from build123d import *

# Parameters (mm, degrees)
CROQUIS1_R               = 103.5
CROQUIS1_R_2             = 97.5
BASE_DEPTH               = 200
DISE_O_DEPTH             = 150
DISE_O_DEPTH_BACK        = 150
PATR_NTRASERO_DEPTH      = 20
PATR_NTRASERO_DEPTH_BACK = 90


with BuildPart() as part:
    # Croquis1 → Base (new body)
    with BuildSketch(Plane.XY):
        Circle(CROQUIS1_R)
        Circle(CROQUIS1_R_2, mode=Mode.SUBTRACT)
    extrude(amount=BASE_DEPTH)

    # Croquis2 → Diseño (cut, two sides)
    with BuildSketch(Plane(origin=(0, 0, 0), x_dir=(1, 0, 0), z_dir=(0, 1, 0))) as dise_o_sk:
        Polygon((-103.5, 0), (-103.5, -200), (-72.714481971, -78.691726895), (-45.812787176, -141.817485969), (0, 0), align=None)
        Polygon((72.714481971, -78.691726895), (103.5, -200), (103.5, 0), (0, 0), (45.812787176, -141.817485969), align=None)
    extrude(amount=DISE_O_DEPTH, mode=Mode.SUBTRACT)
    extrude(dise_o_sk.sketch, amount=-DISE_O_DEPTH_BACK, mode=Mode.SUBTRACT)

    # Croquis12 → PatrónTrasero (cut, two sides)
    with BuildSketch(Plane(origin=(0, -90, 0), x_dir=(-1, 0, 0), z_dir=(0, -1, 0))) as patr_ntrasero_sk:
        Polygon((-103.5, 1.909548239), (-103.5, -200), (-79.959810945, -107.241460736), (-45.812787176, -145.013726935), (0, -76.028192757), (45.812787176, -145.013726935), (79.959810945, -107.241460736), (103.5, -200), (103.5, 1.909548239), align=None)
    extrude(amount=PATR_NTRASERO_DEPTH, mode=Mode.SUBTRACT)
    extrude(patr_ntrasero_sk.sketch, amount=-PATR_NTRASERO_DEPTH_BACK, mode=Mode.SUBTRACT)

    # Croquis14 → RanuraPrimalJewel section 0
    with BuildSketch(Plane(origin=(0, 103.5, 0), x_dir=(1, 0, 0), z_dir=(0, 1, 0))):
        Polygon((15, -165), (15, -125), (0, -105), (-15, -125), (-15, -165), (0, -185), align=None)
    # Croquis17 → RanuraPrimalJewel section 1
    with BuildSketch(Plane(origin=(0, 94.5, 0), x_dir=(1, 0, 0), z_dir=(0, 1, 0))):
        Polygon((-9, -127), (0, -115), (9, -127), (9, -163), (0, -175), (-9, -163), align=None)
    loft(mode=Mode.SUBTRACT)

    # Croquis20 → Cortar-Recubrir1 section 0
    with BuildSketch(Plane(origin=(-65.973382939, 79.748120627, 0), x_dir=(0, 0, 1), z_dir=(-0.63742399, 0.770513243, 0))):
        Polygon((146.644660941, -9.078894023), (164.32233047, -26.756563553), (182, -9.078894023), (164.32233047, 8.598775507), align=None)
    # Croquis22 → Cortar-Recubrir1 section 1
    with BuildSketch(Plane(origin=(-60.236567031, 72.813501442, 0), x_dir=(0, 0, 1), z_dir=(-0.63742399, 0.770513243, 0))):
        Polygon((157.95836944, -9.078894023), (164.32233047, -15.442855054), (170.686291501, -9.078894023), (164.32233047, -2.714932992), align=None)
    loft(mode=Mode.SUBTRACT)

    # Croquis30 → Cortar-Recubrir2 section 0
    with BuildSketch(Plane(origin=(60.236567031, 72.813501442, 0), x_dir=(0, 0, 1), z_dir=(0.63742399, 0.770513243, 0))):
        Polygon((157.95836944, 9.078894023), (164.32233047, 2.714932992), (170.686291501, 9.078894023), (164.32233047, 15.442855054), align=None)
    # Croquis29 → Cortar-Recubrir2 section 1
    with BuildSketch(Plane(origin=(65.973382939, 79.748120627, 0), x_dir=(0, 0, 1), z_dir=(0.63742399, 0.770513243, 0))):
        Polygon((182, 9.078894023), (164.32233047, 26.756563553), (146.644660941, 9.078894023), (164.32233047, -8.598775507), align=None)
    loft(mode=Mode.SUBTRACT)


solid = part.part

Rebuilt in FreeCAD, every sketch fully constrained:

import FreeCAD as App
import Part
import Sketcher
from FreeCAD import Vector
Q = App.Units.Quantity

doc = App.newDocument("Part")
body = doc.addObject("PartDesign::Body", "Body")

# Sketch on XY plane
sketch1 = body.newObject("Sketcher::SketchObject", "Sketch")
sketch1.AttachmentSupport = (doc.getObject("XY_Plane"), [""])
sketch1.MapMode = "FlatFace"
sketch1.addGeometry(Part.Circle(Vector(0, 0, 0), Vector(0, 0, 1), 104), False)
sketch1.addGeometry(Part.Circle(Vector(0, 0, 0), Vector(0, 0, 1), 98), False)
sketch1.addConstraint(Sketcher.Constraint("Coincident", 0, 3, -1, 1))
sketch1.addConstraint(Sketcher.Constraint("Coincident", 1, 3, -1, 1))
sketch1.addConstraint(Sketcher.Constraint("Diameter", 0, Q("207 mm")))
sketch1.addConstraint(Sketcher.Constraint("Diameter", 1, Q("195 mm")))
pad1 = body.newObject("PartDesign::Pad", "Pad")
pad1.Profile = sketch1
pad1.Length = 200

# Sketch on XZ plane
sketch2 = body.newObject("Sketcher::SketchObject", "Sketch001")
sketch2.AttachmentSupport = (doc.getObject("XZ_Plane"), [""])
sketch2.MapMode = "FlatFace"
sketch2.addGeometry(Part.LineSegment(Vector(-104, 0, 0), Vector(-104, 200, 0)), False)
sketch2.addGeometry(Part.LineSegment(Vector(-104, 200, 0), Vector(-73, 79, 0)), False)
sketch2.addGeometry(Part.LineSegment(Vector(-73, 79, 0), Vector(-46, 142, 0)), False)
sketch2.addGeometry(Part.LineSegment(Vector(-46, 142, 0), Vector(0, 0, 0)), False)
sketch2.addGeometry(Part.LineSegment(Vector(0, 0, 0), Vector(-104, 0, 0)), False)
sketch2.addGeometry(Part.LineSegment(Vector(73, 79, 0), Vector(104, 200, 0)), False)
sketch2.addGeometry(Part.LineSegment(Vector(104, 200, 0), Vector(104, 0, 0)), False)
sketch2.addGeometry(Part.LineSegment(Vector(104, 0, 0), Vector(0, 0, 0)), False)
sketch2.addGeometry(Part.LineSegment(Vector(0, 0, 0), Vector(46, 142, 0)), False)
sketch2.addGeometry(Part.LineSegment(Vector(46, 142, 0), Vector(73, 79, 0)), False)
sketch2.addConstraint(Sketcher.Constraint("Coincident", 0, 2, 1, 1))
sketch2.addConstraint(Sketcher.Constraint("Coincident", 1, 2, 2, 1))
sketch2.addConstraint(Sketcher.Constraint("Coincident", 2, 2, 3, 1))
sketch2.addConstraint(Sketcher.Constraint("Coincident", 3, 2, 4, 1))
sketch2.addConstraint(Sketcher.Constraint("Coincident", 4, 2, 0, 1))
sketch2.addConstraint(Sketcher.Constraint("Coincident", 5, 2, 6, 1))
sketch2.addConstraint(Sketcher.Constraint("Coincident", 6, 2, 7, 1))
sketch2.addConstraint(Sketcher.Constraint("Coincident", 7, 2, 8, 1))
sketch2.addConstraint(Sketcher.Constraint("Coincident", 8, 2, 9, 1))
sketch2.addConstraint(Sketcher.Constraint("Coincident", 9, 2, 5, 1))
sketch2.addConstraint(Sketcher.Constraint("Vertical", 0))
sketch2.addConstraint(Sketcher.Constraint("Horizontal", 4))
sketch2.addConstraint(Sketcher.Constraint("Vertical", 6))
sketch2.addConstraint(Sketcher.Constraint("Horizontal", 7))
sketch2.addConstraint(Sketcher.Constraint("Coincident", 3, 2, -1, 1))
sketch2.addConstraint(Sketcher.Constraint("Coincident", 7, 2, -1, 1))
sketch2.addConstraint(Sketcher.Constraint("Symmetric", 0, 2, 5, 2, -2))
sketch2.addConstraint(Sketcher.Constraint("Symmetric", 2, 2, 8, 2, -2))
sketch2.addConstraint(Sketcher.Constraint("Symmetric", 1, 2, 9, 2, -2))
sketch2.addConstraint(Sketcher.Constraint("DistanceY", 0, 1, 0, 2, Q("200 mm")))
sketch2.addConstraint(Sketcher.Constraint("DistanceX", 4, 2, 4, 1, Q("103.5 mm")))
sketch2.addConstraint(Sketcher.Constraint("Distance", 3, Q("149.033589 mm")))
sketch2.addConstraint(Sketcher.Constraint("DistanceX", 1, 2, -1, 1, Q("72.714482 mm")))
sketch2.addConstraint(Sketcher.Constraint("DistanceY", 1, 2, 2, 2, Q("63.125759 mm")))
sketch2.addConstraint(Sketcher.Constraint("DistanceX", 1, 2, 8, 2, Q("118.527269 mm")))
pocket1 = body.newObject("PartDesign::Pocket", "Pocket")
pocket1.Profile = sketch2
pocket1.Type = "ThroughAll"
pocket1.Midplane = True

# Sketch on XZ plane
sketch3 = body.newObject("Sketcher::SketchObject", "Sketch002")
sketch3.AttachmentSupport = (doc.getObject("XZ_Plane"), [""])
sketch3.MapMode = "FlatFace"
sketch3.AttachmentOffset = App.Placement(Vector(0, 0, 90), App.Rotation())
sketch3.addGeometry(Part.LineSegment(Vector(104, -2, 0), Vector(104, 200, 0)), False)
sketch3.addGeometry(Part.LineSegment(Vector(104, 200, 0), Vector(80, 107, 0)), False)
sketch3.addGeometry(Part.LineSegment(Vector(80, 107, 0), Vector(46, 145, 0)), False)
sketch3.addGeometry(Part.LineSegment(Vector(46, 145, 0), Vector(0, 76, 0)), False)
sketch3.addGeometry(Part.LineSegment(Vector(0, 76, 0), Vector(-46, 145, 0)), False)
sketch3.addGeometry(Part.LineSegment(Vector(-46, 145, 0), Vector(-80, 107, 0)), False)
sketch3.addGeometry(Part.LineSegment(Vector(-80, 107, 0), Vector(-104, 200, 0)), False)
sketch3.addGeometry(Part.LineSegment(Vector(-104, 200, 0), Vector(-104, -2, 0)), False)
sketch3.addGeometry(Part.LineSegment(Vector(-104, -2, 0), Vector(104, -2, 0)), False)
sketch3.addConstraint(Sketcher.Constraint("Coincident", 0, 2, 1, 1))
sketch3.addConstraint(Sketcher.Constraint("Coincident", 1, 2, 2, 1))
sketch3.addConstraint(Sketcher.Constraint("Coincident", 2, 2, 3, 1))
sketch3.addConstraint(Sketcher.Constraint("Coincident", 3, 2, 4, 1))
sketch3.addConstraint(Sketcher.Constraint("Coincident", 4, 2, 5, 1))
sketch3.addConstraint(Sketcher.Constraint("Coincident", 5, 2, 6, 1))
sketch3.addConstraint(Sketcher.Constraint("Coincident", 6, 2, 7, 1))
sketch3.addConstraint(Sketcher.Constraint("Coincident", 7, 2, 8, 1))
sketch3.addConstraint(Sketcher.Constraint("Coincident", 8, 2, 0, 1))
sketch3.addConstraint(Sketcher.Constraint("Vertical", 0))
sketch3.addConstraint(Sketcher.Constraint("Vertical", 7))
sketch3.addConstraint(Sketcher.Constraint("Horizontal", 8))
sketch3.addConstraint(Sketcher.Constraint("Symmetric", 2, 2, 4, 2, -2))
sketch3.addConstraint(Sketcher.Constraint("Symmetric", 1, 2, 5, 2, -2))
sketch3.addConstraint(Sketcher.Constraint("Symmetric", 0, 2, 6, 2, -2))
sketch3.addConstraint(Sketcher.Constraint("PointOnObject", 3, 2, -2))
sketch3.addConstraint(Sketcher.Constraint("DistanceX", 8, 1, 8, 2, Q("207 mm")))
sketch3.addConstraint(Sketcher.Constraint("DistanceY", -1, 1, 0, 2, Q("200 mm")))
sketch3.addConstraint(Sketcher.Constraint("DistanceY", 0, 1, 0, 2, Q("201.909548 mm")))
sketch3.addConstraint(Sketcher.Constraint("DistanceX", 4, 2, 1, 2, Q("125.772598 mm")))
sketch3.addConstraint(Sketcher.Constraint("Distance", 1, Q("95.69894 mm")))
sketch3.addConstraint(Sketcher.Constraint("DistanceX", -1, 1, 1, 2, Q("79.959811 mm")))
sketch3.addConstraint(Sketcher.Constraint("DistanceY", 7, 2, 3, 2, Q("77.937741 mm")))
sketch3.addConstraint(Sketcher.Constraint("Distance", 2, Q("50.919184 mm")))
pocket2 = body.newObject("PartDesign::Pocket", "Pocket001")
pocket2.Profile = sketch3
pocket2.Type = "TwoLengths"
pocket2.Length = 20
pocket2.Length2 = 90
pocket2.Reversed = True

# Sketch on XZ plane
sketch4 = body.newObject("Sketcher::SketchObject", "Sketch003")
sketch4.AttachmentSupport = (doc.getObject("XZ_Plane"), [""])
sketch4.MapMode = "FlatFace"
sketch4.AttachmentOffset = App.Placement(Vector(0, 0, -103.5), App.Rotation())
sketch4.addGeometry(Part.LineSegment(Vector(15, 165, 0), Vector(15, 125, 0)), False)
sketch4.addGeometry(Part.LineSegment(Vector(15, 125, 0), Vector(0, 105, 0)), False)
sketch4.addGeometry(Part.LineSegment(Vector(0, 105, 0), Vector(-15, 125, 0)), False)
sketch4.addGeometry(Part.LineSegment(Vector(-15, 125, 0), Vector(-15, 165, 0)), False)
sketch4.addGeometry(Part.LineSegment(Vector(-15, 165, 0), Vector(0, 185, 0)), False)
sketch4.addGeometry(Part.LineSegment(Vector(0, 185, 0), Vector(15, 165, 0)), False)
sketch4.addConstraint(Sketcher.Constraint("Coincident", 0, 2, 1, 1))
sketch4.addConstraint(Sketcher.Constraint("Coincident", 1, 2, 2, 1))
sketch4.addConstraint(Sketcher.Constraint("Coincident", 2, 2, 3, 1))
sketch4.addConstraint(Sketcher.Constraint("Coincident", 3, 2, 4, 1))
sketch4.addConstraint(Sketcher.Constraint("Coincident", 4, 2, 5, 1))
sketch4.addConstraint(Sketcher.Constraint("Coincident", 5, 2, 0, 1))
sketch4.addConstraint(Sketcher.Constraint("Vertical", 0))
sketch4.addConstraint(Sketcher.Constraint("Vertical", 3))
sketch4.addConstraint(Sketcher.Constraint("Symmetric", 0, 2, 2, 2, -2))
sketch4.addConstraint(Sketcher.Constraint("PointOnObject", 1, 2, -2))
sketch4.addConstraint(Sketcher.Constraint("PointOnObject", 4, 2, -2))
sketch4.addConstraint(Sketcher.Constraint("Parallel", 1, 4))
sketch4.addConstraint(Sketcher.Constraint("Parallel", 2, 5))
sketch4.addConstraint(Sketcher.Constraint("DistanceY", 0, 2, 0, 1, Q("40 mm")))
sketch4.addConstraint(Sketcher.Constraint("Distance", 1, Q("25 mm")))
sketch4.addConstraint(Sketcher.Constraint("DistanceX", -1, 1, 0, 2, Q("15 mm")))
sketch4.addConstraint(Sketcher.Constraint("DistanceY", -1, 1, 0, 2, Q("125 mm")))

# Sketch on XZ plane
sketch5 = body.newObject("Sketcher::SketchObject", "Sketch004")
sketch5.AttachmentSupport = (doc.getObject("XZ_Plane"), [""])
sketch5.MapMode = "FlatFace"
sketch5.AttachmentOffset = App.Placement(Vector(0, 0, -94.5), App.Rotation())
sketch5.addGeometry(Part.LineSegment(Vector(0, 115, 0), Vector(-9, 127, 0)), False)
sketch5.addGeometry(Part.LineSegment(Vector(-9, 127, 0), Vector(-9, 163, 0)), False)
sketch5.addGeometry(Part.LineSegment(Vector(-9, 163, 0), Vector(0, 175, 0)), False)
sketch5.addGeometry(Part.LineSegment(Vector(0, 175, 0), Vector(9, 163, 0)), False)
sketch5.addGeometry(Part.LineSegment(Vector(9, 163, 0), Vector(9, 127, 0)), False)
sketch5.addGeometry(Part.LineSegment(Vector(9, 127, 0), Vector(0, 115, 0)), False)
sketch5.addConstraint(Sketcher.Constraint("Coincident", 0, 2, 1, 1))
sketch5.addConstraint(Sketcher.Constraint("Coincident", 1, 2, 2, 1))
sketch5.addConstraint(Sketcher.Constraint("Coincident", 2, 2, 3, 1))
sketch5.addConstraint(Sketcher.Constraint("Coincident", 3, 2, 4, 1))
sketch5.addConstraint(Sketcher.Constraint("Coincident", 4, 2, 5, 1))
sketch5.addConstraint(Sketcher.Constraint("Coincident", 5, 2, 0, 1))
sketch5.addConstraint(Sketcher.Constraint("Vertical", 1))
sketch5.addConstraint(Sketcher.Constraint("Vertical", 4))
sketch5.addConstraint(Sketcher.Constraint("Symmetric", 1, 2, 3, 2, -2))
sketch5.addConstraint(Sketcher.Constraint("PointOnObject", 2, 2, -2))
sketch5.addConstraint(Sketcher.Constraint("PointOnObject", 5, 2, -2))
sketch5.addConstraint(Sketcher.Constraint("Parallel", 0, 3))
sketch5.addConstraint(Sketcher.Constraint("Parallel", 2, 5))
sketch5.addConstraint(Sketcher.Constraint("DistanceY", 1, 1, 1, 2, Q("36 mm")))
sketch5.addConstraint(Sketcher.Constraint("Distance", 0, Q("15 mm")))
sketch5.addConstraint(Sketcher.Constraint("DistanceX", 0, 2, -1, 1, Q("9 mm")))
sketch5.addConstraint(Sketcher.Constraint("DistanceY", -1, 1, 0, 2, Q("127 mm")))

subtractiveloft = body.newObject("PartDesign::SubtractiveLoft", "SubtractiveLoft")
subtractiveloft.Profile = sketch4
subtractiveloft.Sections = [sketch5]

# Sketch on an angled plane
sketch6 = body.newObject("Sketcher::SketchObject", "Sketch005")
sketch6.Placement = App.Placement(Vector(-65.973383, 79.748121, 0), App.Rotation(Vector(0, 0, 1), Vector(0.770513243, 0.63742399, 0), Vector(-0.63742399, 0.770513243, 0), "ZXY"))
sketch6.addGeometry(Part.LineSegment(Vector(147, -9, 0), Vector(164, -27, 0)), False)
sketch6.addGeometry(Part.LineSegment(Vector(164, -27, 0), Vector(182, -9, 0)), False)
sketch6.addGeometry(Part.LineSegment(Vector(182, -9, 0), Vector(164, 9, 0)), False)
sketch6.addGeometry(Part.LineSegment(Vector(164, 9, 0), Vector(147, -9, 0)), False)
sketch6.addConstraint(Sketcher.Constraint("Coincident", 0, 2, 1, 1))
sketch6.addConstraint(Sketcher.Constraint("Coincident", 1, 2, 2, 1))
sketch6.addConstraint(Sketcher.Constraint("Coincident", 2, 2, 3, 1))
sketch6.addConstraint(Sketcher.Constraint("Coincident", 3, 2, 0, 1))
sketch6.addConstraint(Sketcher.Constraint("Perpendicular", 0, 1))
sketch6.addConstraint(Sketcher.Constraint("Perpendicular", 1, 2))
sketch6.addConstraint(Sketcher.Constraint("Perpendicular", 2, 3))
sketch6.addConstraint(Sketcher.Constraint("Horizontal", 1, 2, 3, 2))
sketch6.addConstraint(Sketcher.Constraint("Vertical", 0, 2, 2, 2))
sketch6.addConstraint(Sketcher.Constraint("Distance", 0, Q("25 mm")))
sketch6.addConstraint(Sketcher.Constraint("DistanceX", -1, 1, 1, 2, Q("182 mm")))
sketch6.addConstraint(Sketcher.Constraint("DistanceY", 0, 2, -1, 1, Q("26.756564 mm")))

# Sketch on an angled plane
sketch7 = body.newObject("Sketcher::SketchObject", "Sketch006")
sketch7.Placement = App.Placement(Vector(-60.236567, 72.813501, 0), App.Rotation(Vector(0, 0, 1), Vector(0.770513243, 0.63742399, 0), Vector(-0.63742399, 0.770513243, 0), "ZXY"))
sketch7.addGeometry(Part.LineSegment(Vector(158, -9, 0), Vector(164, -15, 0)), False)
sketch7.addGeometry(Part.LineSegment(Vector(164, -15, 0), Vector(171, -9, 0)), False)
sketch7.addGeometry(Part.LineSegment(Vector(171, -9, 0), Vector(164, -3, 0)), False)
sketch7.addGeometry(Part.LineSegment(Vector(164, -3, 0), Vector(158, -9, 0)), False)
sketch7.addConstraint(Sketcher.Constraint("Coincident", 0, 2, 1, 1))
sketch7.addConstraint(Sketcher.Constraint("Coincident", 1, 2, 2, 1))
sketch7.addConstraint(Sketcher.Constraint("Coincident", 2, 2, 3, 1))
sketch7.addConstraint(Sketcher.Constraint("Coincident", 3, 2, 0, 1))
sketch7.addConstraint(Sketcher.Constraint("Perpendicular", 0, 1))
sketch7.addConstraint(Sketcher.Constraint("Perpendicular", 1, 2))
sketch7.addConstraint(Sketcher.Constraint("Perpendicular", 2, 3))
sketch7.addConstraint(Sketcher.Constraint("Horizontal", 1, 2, 3, 2))
sketch7.addConstraint(Sketcher.Constraint("Vertical", 0, 2, 2, 2))
sketch7.addConstraint(Sketcher.Constraint("Distance", 0, Q("9 mm")))
sketch7.addConstraint(Sketcher.Constraint("DistanceX", -1, 1, 0, 2, Q("164.32233 mm")))
sketch7.addConstraint(Sketcher.Constraint("DistanceY", 0, 2, -1, 1, Q("15.442855 mm")))

subtractiveloft2 = body.newObject("PartDesign::SubtractiveLoft", "SubtractiveLoft001")
subtractiveloft2.Profile = sketch6
subtractiveloft2.Sections = [sketch7]

# Sketch on an angled plane
sketch8 = body.newObject("Sketcher::SketchObject", "Sketch007")
sketch8.Placement = App.Placement(Vector(60.236567, 72.813501, 0), App.Rotation(Vector(0, 0, 1), Vector(0.770513243, -0.63742399, 0), Vector(0.63742399, 0.770513243, 0), "ZXY"))
sketch8.addGeometry(Part.LineSegment(Vector(158, 9, 0), Vector(164, 3, 0)), False)
sketch8.addGeometry(Part.LineSegment(Vector(164, 3, 0), Vector(171, 9, 0)), False)
sketch8.addGeometry(Part.LineSegment(Vector(171, 9, 0), Vector(164, 15, 0)), False)
sketch8.addGeometry(Part.LineSegment(Vector(164, 15, 0), Vector(158, 9, 0)), False)
sketch8.addConstraint(Sketcher.Constraint("Coincident", 0, 2, 1, 1))
sketch8.addConstraint(Sketcher.Constraint("Coincident", 1, 2, 2, 1))
sketch8.addConstraint(Sketcher.Constraint("Coincident", 2, 2, 3, 1))
sketch8.addConstraint(Sketcher.Constraint("Coincident", 3, 2, 0, 1))
sketch8.addConstraint(Sketcher.Constraint("Perpendicular", 0, 1))
sketch8.addConstraint(Sketcher.Constraint("Perpendicular", 1, 2))
sketch8.addConstraint(Sketcher.Constraint("Perpendicular", 2, 3))
sketch8.addConstraint(Sketcher.Constraint("Horizontal", 1, 2, 3, 2))
sketch8.addConstraint(Sketcher.Constraint("Vertical", 0, 2, 2, 2))
sketch8.addConstraint(Sketcher.Constraint("Distance", 0, Q("9 mm")))
sketch8.addConstraint(Sketcher.Constraint("DistanceX", -1, 1, 0, 2, Q("164.32233 mm")))
sketch8.addConstraint(Sketcher.Constraint("DistanceY", -1, 1, 0, 2, Q("2.714933 mm")))

# Sketch on an angled plane
sketch9 = body.newObject("Sketcher::SketchObject", "Sketch008")
sketch9.Placement = App.Placement(Vector(65.973383, 79.748121, 0), App.Rotation(Vector(0, 0, 1), Vector(0.770513243, -0.63742399, 0), Vector(0.63742399, 0.770513243, 0), "ZXY"))
sketch9.addGeometry(Part.LineSegment(Vector(182, 9, 0), Vector(164, 27, 0)), False)
sketch9.addGeometry(Part.LineSegment(Vector(164, 27, 0), Vector(147, 9, 0)), False)
sketch9.addGeometry(Part.LineSegment(Vector(147, 9, 0), Vector(164, -9, 0)), False)
sketch9.addGeometry(Part.LineSegment(Vector(164, -9, 0), Vector(182, 9, 0)), False)
sketch9.addConstraint(Sketcher.Constraint("Coincident", 0, 2, 1, 1))
sketch9.addConstraint(Sketcher.Constraint("Coincident", 1, 2, 2, 1))
sketch9.addConstraint(Sketcher.Constraint("Coincident", 2, 2, 3, 1))
sketch9.addConstraint(Sketcher.Constraint("Coincident", 3, 2, 0, 1))
sketch9.addConstraint(Sketcher.Constraint("Perpendicular", 0, 1))
sketch9.addConstraint(Sketcher.Constraint("Perpendicular", 1, 2))
sketch9.addConstraint(Sketcher.Constraint("Perpendicular", 2, 3))
sketch9.addConstraint(Sketcher.Constraint("Horizontal", 1, 2, 3, 2))
sketch9.addConstraint(Sketcher.Constraint("Vertical", 0, 2, 2, 2))
sketch9.addConstraint(Sketcher.Constraint("Distance", 0, Q("25 mm")))
sketch9.addConstraint(Sketcher.Constraint("DistanceX", -1, 1, 3, 2, Q("182 mm")))
sketch9.addConstraint(Sketcher.Constraint("DistanceY", -1, 1, 0, 2, Q("26.756564 mm")))

subtractiveloft3 = body.newObject("PartDesign::SubtractiveLoft", "SubtractiveLoft002")
subtractiveloft3.Profile = sketch8
subtractiveloft3.Sections = [sketch9]

doc.recompute()
